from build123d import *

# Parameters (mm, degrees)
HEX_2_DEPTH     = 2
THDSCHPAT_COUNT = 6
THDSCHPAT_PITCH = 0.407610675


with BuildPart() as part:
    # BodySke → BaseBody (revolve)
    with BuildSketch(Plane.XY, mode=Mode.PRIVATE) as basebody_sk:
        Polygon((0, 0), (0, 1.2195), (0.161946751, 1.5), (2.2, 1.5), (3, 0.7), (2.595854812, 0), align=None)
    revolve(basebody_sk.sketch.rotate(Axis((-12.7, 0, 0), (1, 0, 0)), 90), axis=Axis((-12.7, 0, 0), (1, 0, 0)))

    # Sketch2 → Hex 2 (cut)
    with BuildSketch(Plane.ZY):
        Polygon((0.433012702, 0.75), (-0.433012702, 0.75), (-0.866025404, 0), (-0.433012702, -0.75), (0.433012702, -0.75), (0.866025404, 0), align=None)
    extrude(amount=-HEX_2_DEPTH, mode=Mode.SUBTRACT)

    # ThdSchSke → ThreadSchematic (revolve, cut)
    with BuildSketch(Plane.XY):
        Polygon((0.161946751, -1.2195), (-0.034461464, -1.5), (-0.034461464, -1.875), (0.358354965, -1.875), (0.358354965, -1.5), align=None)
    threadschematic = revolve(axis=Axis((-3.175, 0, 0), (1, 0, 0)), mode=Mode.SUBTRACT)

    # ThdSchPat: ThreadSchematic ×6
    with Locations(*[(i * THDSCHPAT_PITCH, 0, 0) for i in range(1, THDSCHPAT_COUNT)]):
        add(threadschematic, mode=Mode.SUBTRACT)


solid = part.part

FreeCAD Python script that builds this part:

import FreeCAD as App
import Part
import Sketcher
from FreeCAD import Vector
Q = App.Units.Quantity


def add_polygon(sketch, points):
    """Adds a closed chain of lines whose ends are joined by coincident constraints."""
    first, n = sketch.GeometryCount, len(points)
    for a, b in zip(points, points[1:] + points[:1]):
        sketch.addGeometry(Part.LineSegment(App.Vector(*a, 0), App.Vector(*b, 0)), False)
    for i in range(n):
        sketch.addConstraint(Sketcher.Constraint("Coincident", first + i, 2, first + (i + 1) % n, 1))

doc = App.newDocument("Part")
body = doc.addObject("PartDesign::Body", "Body")

# Sketch on XY plane
sketch1 = body.newObject("Sketcher::SketchObject", "Sketch")
sketch1.AttachmentSupport = (doc.getObject("XY_Plane"), [""])
sketch1.MapMode = "FlatFace"
add_polygon(sketch1, [(0, 1.22), (0, 0), (2.6, 0), (3, 0.7), (2.2, 1.5), (0.16, 1.5)])  # lines 0-5
sketch1.addConstraint(Sketcher.Constraint("Vertical", 0))
sketch1.addConstraint(Sketcher.Constraint("Horizontal", 1))
sketch1.addConstraint(Sketcher.Constraint("Horizontal", 4))
sketch1.addConstraint(Sketcher.Constraint("Coincident", 0, 2, -1, 1))
sketch1.addConstraint(Sketcher.Constraint("Parallel", 2, 5))
sketch1.addConstraint(Sketcher.Constraint("Angle", 2, Q("60 deg")))
sketch1.addConstraint(Sketcher.Constraint("Angle", 3, Q("135 deg")))
sketch1.addConstraint(Sketcher.Constraint("DistanceX", -1, 1, 2, 2, 3.0))
sketch1.addConstraint(Sketcher.Constraint("DistanceY", -1, 1, 2, 2, 0.7))
sketch1.addConstraint(Sketcher.Constraint("DistanceX", -1, 1, 3, 2, 2.2))
sketch1.addConstraint(Sketcher.Constraint("DistanceY", 0, 2, 0, 1, 1.2195))
revolution = body.newObject("PartDesign::Revolution", "Revolution")
revolution.Profile = sketch1
revolution.ReferenceAxis = (sketch1, ["H_Axis"])
revolution.Angle = 360

# Sketch on YZ plane
sketch2 = body.newObject("Sketcher::SketchObject", "Sketch001")
sketch2.AttachmentSupport = (doc.getObject("YZ_Plane"), [""])
sketch2.MapMode = "FlatFace"
add_polygon(sketch2, [(0.8, 0.4), (0.8, -0.4), (0, -0.9), (-0.8, -0.4), (-0.8, 0.4), (0, 0.9)])  # lines 0-5
sketch2.addConstraint(Sketcher.Constraint("Vertical", 0))
sketch2.addConstraint(Sketcher.Constraint("Vertical", 3))
sketch2.addConstraint(Sketcher.Constraint("Symmetric", 0, 2, 3, 2, -1, 1))
sketch2.addConstraint(Sketcher.Constraint("Symmetric", 1, 2, 4, 2, -1, 1))
sketch2.addConstraint(Sketcher.Constraint("PointOnObject", 1, 2, -2))
sketch2.addConstraint(Sketcher.Constraint("Parallel", 2, 5))
sketch2.addConstraint(Sketcher.Constraint("Horizontal", 0, 2, 2, 2))
sketch2.addConstraint(Sketcher.Constraint("Angle", 1, Q("-150 deg")))
sketch2.addConstraint(Sketcher.Constraint("DistanceX", 2, 2, 0, 2, 1.5))
sketch2.addConstraint(Sketcher.Constraint("DistanceY", 0, 2, 0, 1, 0.866025))
pocket1 = body.newObject("PartDesign::Pocket", "Pocket")
pocket1.Profile = sketch2
pocket1.Length = 2
pocket1.Reversed = True

# Sketch on XY plane
sketch3 = body.newObject("Sketcher::SketchObject", "Sketch002")
sketch3.AttachmentSupport = (doc.getObject("XY_Plane"), [""])
sketch3.MapMode = "FlatFace"
add_polygon(sketch3, [(0.16, -1.22), (-0.03, -1.5), (-0.03, -1.88), (0.36, -1.88), (0.36, -1.5)])  # lines 0-4
sketch3.addConstraint(Sketcher.Constraint("Vertical", 1))
sketch3.addConstraint(Sketcher.Constraint("Horizontal", 2))
sketch3.addConstraint(Sketcher.Constraint("Vertical", 3))
sketch3.addConstraint(Sketcher.Constraint("Horizontal", 0, 2, 3, 2))
sketch3.addConstraint(Sketcher.Constraint("Equal", 0, 4))
sketch3.addConstraint(Sketcher.Constraint("Angle", 0, Q("-125 deg")))
sketch3.addConstraint(Sketcher.Constraint("DistanceY", 0, 2, -1, 1, 1.5))
sketch3.addConstraint(Sketcher.Constraint("DistanceY", 1, 2, 1, 1, 0.375))
sketch3.addConstraint(Sketcher.Constraint("DistanceY", 4, 2, -1, 1, 1.2195))
sketch3.addConstraint(Sketcher.Constraint("DistanceX", 0, 2, -1, 1, 0.034461))
groove = body.newObject("PartDesign::Groove", "Groove")
groove.Profile = sketch3
groove.ReferenceAxis = (sketch3, ["H_Axis"])
groove.Angle = 360
doc.recompute()

linearpattern = body.newObject("PartDesign::LinearPattern", "LinearPattern")
linearpattern.Originals = [groove]
linearpattern.Direction = (doc.getObject("X_Axis"), [""])
linearpattern.Mode = "offset"
linearpattern.Offset = 0.407611
linearpattern.Occurrences = 6
body.Tip = linearpattern

doc.recompute()
